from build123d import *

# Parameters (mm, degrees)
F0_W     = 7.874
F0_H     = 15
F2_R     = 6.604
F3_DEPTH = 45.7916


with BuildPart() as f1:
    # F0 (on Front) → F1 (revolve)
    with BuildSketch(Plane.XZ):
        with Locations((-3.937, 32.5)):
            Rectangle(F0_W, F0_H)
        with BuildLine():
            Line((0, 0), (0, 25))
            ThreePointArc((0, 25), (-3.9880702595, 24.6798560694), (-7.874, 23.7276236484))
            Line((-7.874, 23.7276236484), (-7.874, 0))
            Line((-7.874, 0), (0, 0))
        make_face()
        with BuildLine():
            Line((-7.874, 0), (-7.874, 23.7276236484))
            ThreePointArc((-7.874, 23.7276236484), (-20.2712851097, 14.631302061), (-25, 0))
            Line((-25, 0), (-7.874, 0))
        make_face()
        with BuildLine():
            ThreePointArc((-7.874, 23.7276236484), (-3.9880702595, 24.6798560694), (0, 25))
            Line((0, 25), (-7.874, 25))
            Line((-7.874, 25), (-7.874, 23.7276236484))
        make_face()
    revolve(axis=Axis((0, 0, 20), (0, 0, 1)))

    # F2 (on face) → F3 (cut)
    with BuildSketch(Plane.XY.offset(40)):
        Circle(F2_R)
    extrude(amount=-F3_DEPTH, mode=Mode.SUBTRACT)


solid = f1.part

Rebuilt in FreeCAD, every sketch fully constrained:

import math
import FreeCAD as App
import Part
import Sketcher

doc = App.newDocument("Part")
body = doc.addObject("PartDesign::Body", "Body")

sketch1 = body.newObject("Sketcher::SketchObject", "Sketch")
sketch1.AttachmentSupport = (doc.getObject("XZ_Plane"), [""])
sketch1.MapMode = "FlatFace"
sketch1.addGeometry([
    Part.LineSegment(App.Vector(-8, 40, 0), App.Vector(-8, 24, 0)),
    Part.ArcOfCircle(Part.Circle(App.Vector(0, 0, 0), App.Vector(0, 0, 1), 25), math.radians(108), math.radians(180)),
    Part.LineSegment(App.Vector(-25, 0, 0), App.Vector(0, 0, 0)),
    Part.LineSegment(App.Vector(0, 0, 0), App.Vector(0, 40, 0)),
    Part.LineSegment(App.Vector(0, 40, 0), App.Vector(-8, 40, 0)),
], False)
sketch1.addConstraint([
    Sketcher.Constraint("Coincident", 0, 2, 1, 1),
    Sketcher.Constraint("Coincident", 1, 2, 2, 1),
    Sketcher.Constraint("Coincident", 2, 2, 3, 1),
    Sketcher.Constraint("Coincident", 3, 2, 4, 1),
    Sketcher.Constraint("Coincident", 4, 2, 0, 1),
    Sketcher.Constraint("Vertical", 0),
    Sketcher.Constraint("Horizontal", 2),
    Sketcher.Constraint("Vertical", 3),
    Sketcher.Constraint("Horizontal", 4),
    Sketcher.Constraint("Coincident", 1, 3, -1, 1),
    Sketcher.Constraint("Coincident", 2, 2, -1, 1),
    Sketcher.Constraint("Radius", 1, 25.0),
    Sketcher.Constraint("DistanceY", 3, 1, 3, 2, 40.0),
    Sketcher.Constraint("DistanceX", 4, 2, 4, 1, 7.874),
])
revolution = body.newObject("PartDesign::Revolution", "Revolution")
revolution.Profile = sketch1
revolution.ReferenceAxis = (sketch1, ["V_Axis"])
revolution.Angle = 360

sketch2 = body.newObject("Sketcher::SketchObject", "Sketch001")
sketch2.AttachmentSupport = (doc.getObject("XY_Plane"), [""])
sketch2.MapMode = "FlatFace"
sketch2.AttachmentOffset = App.Placement(App.Vector(0, 0, 40), App.Rotation())
sketch2.addGeometry(Part.Circle(App.Vector(0, 0, 0), App.Vector(0, 0, 1), 7), False)
sketch2.addConstraint([
    Sketcher.Constraint("Coincident", 0, 3, -1, 1),
    Sketcher.Constraint("Diameter", 0, 13.208),
])
pocket1 = body.newObject("PartDesign::Pocket", "Pocket")
pocket1.Profile = sketch2
pocket1.Length = 45.7916

doc.recompute()
